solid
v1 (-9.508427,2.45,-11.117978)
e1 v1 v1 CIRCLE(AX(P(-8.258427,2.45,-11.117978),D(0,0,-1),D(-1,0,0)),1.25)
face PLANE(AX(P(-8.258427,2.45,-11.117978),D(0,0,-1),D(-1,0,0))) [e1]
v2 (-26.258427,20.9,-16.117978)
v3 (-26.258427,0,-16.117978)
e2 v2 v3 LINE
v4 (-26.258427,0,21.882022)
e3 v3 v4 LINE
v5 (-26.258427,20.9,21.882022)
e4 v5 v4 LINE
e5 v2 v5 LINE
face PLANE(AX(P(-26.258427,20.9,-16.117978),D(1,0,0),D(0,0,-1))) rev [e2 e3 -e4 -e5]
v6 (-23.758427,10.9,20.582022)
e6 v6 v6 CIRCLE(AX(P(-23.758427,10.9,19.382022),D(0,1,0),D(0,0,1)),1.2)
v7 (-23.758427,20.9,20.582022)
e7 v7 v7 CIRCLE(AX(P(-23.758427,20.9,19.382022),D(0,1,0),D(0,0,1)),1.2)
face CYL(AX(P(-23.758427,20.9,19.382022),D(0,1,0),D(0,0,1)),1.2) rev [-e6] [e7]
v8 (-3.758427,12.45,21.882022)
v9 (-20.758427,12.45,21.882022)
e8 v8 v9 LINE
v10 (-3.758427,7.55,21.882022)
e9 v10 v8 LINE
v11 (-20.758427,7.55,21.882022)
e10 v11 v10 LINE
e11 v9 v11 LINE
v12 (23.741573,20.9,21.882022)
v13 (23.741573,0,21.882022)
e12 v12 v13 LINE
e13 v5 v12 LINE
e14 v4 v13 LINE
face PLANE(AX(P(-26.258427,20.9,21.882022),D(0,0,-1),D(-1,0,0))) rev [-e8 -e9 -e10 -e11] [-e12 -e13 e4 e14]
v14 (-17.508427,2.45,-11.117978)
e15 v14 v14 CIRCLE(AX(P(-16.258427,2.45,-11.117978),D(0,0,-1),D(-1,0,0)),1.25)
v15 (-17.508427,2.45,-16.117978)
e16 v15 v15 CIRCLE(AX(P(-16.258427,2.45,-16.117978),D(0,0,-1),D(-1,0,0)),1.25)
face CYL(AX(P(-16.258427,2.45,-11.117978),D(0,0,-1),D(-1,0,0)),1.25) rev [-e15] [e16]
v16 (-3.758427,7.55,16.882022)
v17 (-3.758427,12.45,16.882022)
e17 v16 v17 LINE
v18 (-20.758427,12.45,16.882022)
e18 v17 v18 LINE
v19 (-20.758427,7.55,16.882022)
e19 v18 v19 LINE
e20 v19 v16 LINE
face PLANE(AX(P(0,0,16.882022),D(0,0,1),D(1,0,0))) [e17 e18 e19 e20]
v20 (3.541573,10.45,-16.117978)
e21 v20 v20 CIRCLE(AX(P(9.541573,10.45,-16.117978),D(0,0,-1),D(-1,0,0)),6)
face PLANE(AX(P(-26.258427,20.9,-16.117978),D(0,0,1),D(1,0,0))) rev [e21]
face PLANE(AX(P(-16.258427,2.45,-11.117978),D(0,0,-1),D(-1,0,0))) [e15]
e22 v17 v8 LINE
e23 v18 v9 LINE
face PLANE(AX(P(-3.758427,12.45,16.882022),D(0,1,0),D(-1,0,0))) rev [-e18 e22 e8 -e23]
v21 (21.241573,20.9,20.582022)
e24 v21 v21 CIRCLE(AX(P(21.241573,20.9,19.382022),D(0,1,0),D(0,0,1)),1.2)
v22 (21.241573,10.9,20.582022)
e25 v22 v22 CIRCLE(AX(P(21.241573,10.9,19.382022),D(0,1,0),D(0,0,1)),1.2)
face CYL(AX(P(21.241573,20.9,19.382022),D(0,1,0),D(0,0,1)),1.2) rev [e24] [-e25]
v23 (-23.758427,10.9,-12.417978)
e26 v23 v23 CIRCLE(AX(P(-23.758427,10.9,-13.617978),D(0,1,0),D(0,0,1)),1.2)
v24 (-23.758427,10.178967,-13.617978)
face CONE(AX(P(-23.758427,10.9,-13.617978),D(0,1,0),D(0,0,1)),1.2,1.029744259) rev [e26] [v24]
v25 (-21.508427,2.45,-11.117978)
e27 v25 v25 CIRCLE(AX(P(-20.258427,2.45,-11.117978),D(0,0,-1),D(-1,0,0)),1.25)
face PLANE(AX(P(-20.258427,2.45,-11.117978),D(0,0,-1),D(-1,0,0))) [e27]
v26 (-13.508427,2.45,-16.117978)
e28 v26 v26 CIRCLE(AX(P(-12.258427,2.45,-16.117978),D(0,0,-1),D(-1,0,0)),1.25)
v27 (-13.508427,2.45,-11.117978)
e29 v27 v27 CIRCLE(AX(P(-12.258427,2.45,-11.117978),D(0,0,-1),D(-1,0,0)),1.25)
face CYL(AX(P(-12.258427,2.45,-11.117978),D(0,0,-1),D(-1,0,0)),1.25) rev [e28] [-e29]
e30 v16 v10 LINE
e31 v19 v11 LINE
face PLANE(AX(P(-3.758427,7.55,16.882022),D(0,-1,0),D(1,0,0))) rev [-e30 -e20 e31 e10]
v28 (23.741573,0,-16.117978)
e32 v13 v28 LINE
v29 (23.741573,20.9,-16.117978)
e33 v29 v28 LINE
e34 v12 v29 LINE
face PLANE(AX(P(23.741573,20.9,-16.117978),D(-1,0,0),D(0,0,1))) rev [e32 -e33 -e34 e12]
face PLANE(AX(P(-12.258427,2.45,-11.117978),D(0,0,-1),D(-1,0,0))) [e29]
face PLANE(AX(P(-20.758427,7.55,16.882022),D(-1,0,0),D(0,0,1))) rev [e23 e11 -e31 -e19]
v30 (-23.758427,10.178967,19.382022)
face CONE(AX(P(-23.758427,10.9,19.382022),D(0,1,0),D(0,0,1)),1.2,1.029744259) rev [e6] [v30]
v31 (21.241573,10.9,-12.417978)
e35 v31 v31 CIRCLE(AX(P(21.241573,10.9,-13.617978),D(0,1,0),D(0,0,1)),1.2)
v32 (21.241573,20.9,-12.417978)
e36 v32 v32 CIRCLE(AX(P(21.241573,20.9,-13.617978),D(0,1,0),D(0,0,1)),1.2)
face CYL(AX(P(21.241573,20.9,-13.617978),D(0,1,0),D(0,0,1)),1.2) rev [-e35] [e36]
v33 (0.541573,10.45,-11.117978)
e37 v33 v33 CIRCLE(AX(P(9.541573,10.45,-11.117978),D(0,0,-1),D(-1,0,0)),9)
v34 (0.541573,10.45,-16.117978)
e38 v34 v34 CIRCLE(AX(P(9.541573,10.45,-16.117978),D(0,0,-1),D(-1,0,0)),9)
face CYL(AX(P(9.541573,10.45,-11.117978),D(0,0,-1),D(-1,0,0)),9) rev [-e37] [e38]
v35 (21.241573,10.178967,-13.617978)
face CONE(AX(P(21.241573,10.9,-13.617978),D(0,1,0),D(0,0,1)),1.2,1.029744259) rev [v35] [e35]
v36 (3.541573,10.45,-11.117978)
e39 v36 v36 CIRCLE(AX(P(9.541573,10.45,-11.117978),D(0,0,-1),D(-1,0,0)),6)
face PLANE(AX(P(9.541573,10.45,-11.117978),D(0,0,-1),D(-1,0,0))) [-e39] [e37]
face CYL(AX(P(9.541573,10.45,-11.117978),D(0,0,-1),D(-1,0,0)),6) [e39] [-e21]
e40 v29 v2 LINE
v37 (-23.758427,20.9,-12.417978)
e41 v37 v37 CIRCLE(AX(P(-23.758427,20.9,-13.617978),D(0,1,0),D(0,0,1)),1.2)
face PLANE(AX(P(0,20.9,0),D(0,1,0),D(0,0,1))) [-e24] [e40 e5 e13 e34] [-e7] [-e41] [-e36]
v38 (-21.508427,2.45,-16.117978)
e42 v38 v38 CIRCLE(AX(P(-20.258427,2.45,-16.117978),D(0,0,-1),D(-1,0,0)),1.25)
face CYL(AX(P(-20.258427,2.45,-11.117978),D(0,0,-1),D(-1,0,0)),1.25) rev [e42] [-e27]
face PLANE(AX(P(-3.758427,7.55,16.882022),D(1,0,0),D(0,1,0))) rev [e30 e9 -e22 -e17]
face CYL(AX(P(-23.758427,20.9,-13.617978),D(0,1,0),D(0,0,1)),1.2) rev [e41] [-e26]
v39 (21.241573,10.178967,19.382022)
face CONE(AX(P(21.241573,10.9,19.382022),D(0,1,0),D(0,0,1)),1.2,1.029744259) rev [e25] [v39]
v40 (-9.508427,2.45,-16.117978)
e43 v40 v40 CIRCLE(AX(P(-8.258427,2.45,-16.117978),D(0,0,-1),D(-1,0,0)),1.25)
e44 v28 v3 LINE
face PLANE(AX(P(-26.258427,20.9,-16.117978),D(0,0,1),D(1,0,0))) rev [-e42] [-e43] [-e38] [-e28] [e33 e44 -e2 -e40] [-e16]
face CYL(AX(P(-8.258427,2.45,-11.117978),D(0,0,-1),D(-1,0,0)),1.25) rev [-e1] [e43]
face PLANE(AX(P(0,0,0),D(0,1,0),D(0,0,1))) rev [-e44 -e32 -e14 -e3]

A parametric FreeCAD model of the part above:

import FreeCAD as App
import Part
import Sketcher

doc = App.newDocument("Part")
body = doc.addObject("PartDesign::Body", "Body")

sketch1 = doc.addObject("Sketcher::SketchObject", "Sketch")
body.addObject(sketch1)
sketch1.AttachmentSupport = (doc.XZ_Plane, [""])
sketch1.MapMode = "FlatFace"
sketch1.addGeometry(Part.LineSegment(App.Vector(-26, -16, 0), App.Vector(-26, 22, 0)), False)
sketch1.addGeometry(Part.LineSegment(App.Vector(-26, 22, 0), App.Vector(24, 22, 0)), False)
sketch1.addGeometry(Part.LineSegment(App.Vector(24, 22, 0), App.Vector(24, -16, 0)), False)
sketch1.addGeometry(Part.LineSegment(App.Vector(24, -16, 0), App.Vector(-26, -16, 0)), False)
sketch1.addConstraint(Sketcher.Constraint("Coincident", 0, 2, 1, 1))
sketch1.addConstraint(Sketcher.Constraint("Coincident", 1, 2, 2, 1))
sketch1.addConstraint(Sketcher.Constraint("Coincident", 2, 2, 3, 1))
sketch1.addConstraint(Sketcher.Constraint("Coincident", 3, 2, 0, 1))
sketch1.addConstraint(Sketcher.Constraint("Vertical", 0))
sketch1.addConstraint(Sketcher.Constraint("Horizontal", 1))
sketch1.addConstraint(Sketcher.Constraint("Vertical", 2))
sketch1.addConstraint(Sketcher.Constraint("Horizontal", 3))
sketch1.addConstraint(Sketcher.Constraint("DistanceX", 1, 1, 1, 2, 50.0))
sketch1.addConstraint(Sketcher.Constraint("DistanceY", 0, 1, 0, 2, 38.0))
sketch1.addConstraint(Sketcher.Constraint("DistanceX", 0, 2, -1, 1, 26.258427))
sketch1.addConstraint(Sketcher.Constraint("DistanceY", -1, 1, 0, 2, 21.882022))
pad1 = doc.addObject("PartDesign::Pad", "Pad")
body.addObject(pad1)
pad1.Profile = sketch1
pad1.Length = 20.9
pad1.Reversed = True

sketch2 = doc.addObject("Sketcher::SketchObject", "Sketch001")
body.addObject(sketch2)
sketch2.AttachmentSupport = (doc.XZ_Plane, [""])
sketch2.MapMode = "FlatFace"
sketch2.AttachmentOffset = App.Placement(App.Vector(0, 0, -20.9), App.Rotation())
sketch2.addGeometry(Part.Circle(App.Vector(-23.8, -13.6, 0), App.Vector(0, 0, 1), 1.2), False)
sketch2.addGeometry(Part.Circle(App.Vector(-23.8, 19.4, 0), App.Vector(0, 0, 1), 1.2), False)
sketch2.addGeometry(Part.Circle(App.Vector(21.2, 19.4, 0), App.Vector(0, 0, 1), 1.2), False)
sketch2.addGeometry(Part.Circle(App.Vector(21.2, -13.6, 0), App.Vector(0, 0, 1), 1.2), False)
sketch2.addConstraint(Sketcher.Constraint("Equal", 0, 1))
sketch2.addConstraint(Sketcher.Constraint("Equal", 1, 2))
sketch2.addConstraint(Sketcher.Constraint("Equal", 2, 3))
sketch2.addConstraint(Sketcher.Constraint("Horizontal", 1, 3, 2, 3))
sketch2.addConstraint(Sketcher.Constraint("Horizontal", 0, 3, 3, 3))
sketch2.addConstraint(Sketcher.Constraint("Vertical", 0, 3, 1, 3))
sketch2.addConstraint(Sketcher.Constraint("Vertical", 2, 3, 3, 3))
sketch2.addConstraint(Sketcher.Constraint("Diameter", 0, 2.4))
sketch2.addConstraint(Sketcher.Constraint("DistanceY", 0, 3, 1, 3, 33.0))
sketch2.addConstraint(Sketcher.Constraint("DistanceX", 1, 3, 2, 3, 45.0))
sketch2.addConstraint(Sketcher.Constraint("DistanceX", 0, 3, -1, 1, 23.758427))
sketch2.addConstraint(Sketcher.Constraint("DistanceY", 0, 3, -1, 1, 13.617978))
doc.recompute()
hole = doc.addObject("PartDesign::Hole", "Hole")
body.addObject(hole)
hole.Profile = sketch2
hole.ThreadType = "None"
hole.Diameter = 2.4
hole.DepthType = "Dimension"
hole.Depth = 10
hole.DrillPoint = "Angled"
hole.DrillPointAngle = 118
hole.Reversed = True

sketch3 = doc.addObject("Sketcher::SketchObject", "Sketch002")
body.addObject(sketch3)
sketch3.AttachmentSupport = (doc.XY_Plane, [""])
sketch3.MapMode = "FlatFace"
sketch3.AttachmentOffset = App.Placement(App.Vector(0, 0, -16.117978), App.Rotation())
sketch3.addGeometry(Part.Circle(App.Vector(9.5, 10.4, 0), App.Vector(0, 0, 1), 9), False)
sketch3.addGeometry(Part.Circle(App.Vector(9.5, 10.4, 0), App.Vector(0, 0, 1), 6), False)
sketch3.addGeometry(Part.Circle(App.Vector(-20.3, 2.5, 0), App.Vector(0, 0, 1), 1.2), False)
sketch3.addGeometry(Part.Circle(App.Vector(-16.3, 2.5, 0), App.Vector(0, 0, 1), 1.2), False)
sketch3.addGeometry(Part.Circle(App.Vector(-12.3, 2.5, 0), App.Vector(0, 0, 1), 1.2), False)
sketch3.addGeometry(Part.Circle(App.Vector(-8.3, 2.5, 0), App.Vector(0, 0, 1), 1.2), False)
sketch3.addConstraint(Sketcher.Constraint("Coincident", 1, 3, 0, 3))
sketch3.addConstraint(Sketcher.Constraint("Equal", 2, 3))
sketch3.addConstraint(Sketcher.Constraint("Equal", 3, 4))
sketch3.addConstraint(Sketcher.Constraint("Equal", 4, 5))
sketch3.addConstraint(Sketcher.Constraint("Horizontal", 2, 3, 3, 3))
sketch3.addConstraint(Sketcher.Constraint("Horizontal", 3, 3, 4, 3))
sketch3.addConstraint(Sketcher.Constraint("Horizontal", 4, 3, 5, 3))
sketch3.addConstraint(Sketcher.Constraint("Diameter", 0, 18.0))
sketch3.addConstraint(Sketcher.Constraint("Diameter", 1, 12.0))
sketch3.addConstraint(Sketcher.Constraint("Diameter", 2, 2.5))
sketch3.addConstraint(Sketcher.Constraint("DistanceY", 2, 3, 0, 3, 8.0))
sketch3.addConstraint(Sketcher.Constraint("DistanceX", 2, 3, 3, 3, 4.0))
sketch3.addConstraint(Sketcher.Constraint("DistanceX", 3, 3, 4, 3, 4.0))
sketch3.addConstraint(Sketcher.Constraint("DistanceX", 4, 3, 5, 3, 4.0))
sketch3.addConstraint(Sketcher.Constraint("DistanceX", 2, 3, 0, 3, 29.8))
sketch3.addConstraint(Sketcher.Constraint("DistanceY", -1, 1, 0, 3, 10.45))
sketch3.addConstraint(Sketcher.Constraint("DistanceX", -1, 1, 0, 3, 9.541573))
pocket1 = doc.addObject("PartDesign::Pocket", "Pocket")
body.addObject(pocket1)
pocket1.Profile = sketch3
pocket1.Length = 5
pocket1.Reversed = True

sketch4 = doc.addObject("Sketcher::SketchObject", "Sketch003")
body.addObject(sketch4)
sketch4.AttachmentSupport = (doc.XY_Plane, [""])
sketch4.MapMode = "FlatFace"
sketch4.AttachmentOffset = App.Placement(App.Vector(0, 0, 21.882022), App.Rotation())
sketch4.addGeometry(Part.LineSegment(App.Vector(-20.8, 12.4, 0), App.Vector(-20.8, 7.5, 0)), False)
sketch4.addGeometry(Part.LineSegment(App.Vector(-20.8, 7.5, 0), App.Vector(-3.8, 7.5, 0)), False)
sketch4.addGeometry(Part.LineSegment(App.Vector(-3.8, 7.5, 0), App.Vector(-3.8, 12.4, 0)), False)
sketch4.addGeometry(Part.LineSegment(App.Vector(-3.8, 12.4, 0), App.Vector(-20.8, 12.4, 0)), False)
sketch4.addConstraint(Sketcher.Constraint("Coincident", 0, 2, 1, 1))
sketch4.addConstraint(Sketcher.Constraint("Coincident", 1, 2, 2, 1))
sketch4.addConstraint(Sketcher.Constraint("Coincident", 2, 2, 3, 1))
sketch4.addConstraint(Sketcher.Constraint("Coincident", 3, 2, 0, 1))
sketch4.addConstraint(Sketcher.Constraint("Vertical", 0))
sketch4.addConstraint(Sketcher.Constraint("Horizontal", 1))
sketch4.addConstraint(Sketcher.Constraint("Vertical", 2))
sketch4.addConstraint(Sketcher.Constraint("Horizontal", 3))
sketch4.addConstraint(Sketcher.Constraint("DistanceX", 1, 1, 1, 2, 17.0))
sketch4.addConstraint(Sketcher.Constraint("DistanceY", 0, 2, 0, 1, 4.9))
sketch4.addConstraint(Sketcher.Constraint("DistanceY", -1, 1, 0, 2, 7.55))
sketch4.addConstraint(Sketcher.Constraint("DistanceX", 0, 2, -1, 1, 20.758427))
pocket2 = doc.addObject("PartDesign::Pocket", "Pocket001")
body.addObject(pocket2)
pocket2.Profile = sketch4
pocket2.Length = 5

doc.recompute()
